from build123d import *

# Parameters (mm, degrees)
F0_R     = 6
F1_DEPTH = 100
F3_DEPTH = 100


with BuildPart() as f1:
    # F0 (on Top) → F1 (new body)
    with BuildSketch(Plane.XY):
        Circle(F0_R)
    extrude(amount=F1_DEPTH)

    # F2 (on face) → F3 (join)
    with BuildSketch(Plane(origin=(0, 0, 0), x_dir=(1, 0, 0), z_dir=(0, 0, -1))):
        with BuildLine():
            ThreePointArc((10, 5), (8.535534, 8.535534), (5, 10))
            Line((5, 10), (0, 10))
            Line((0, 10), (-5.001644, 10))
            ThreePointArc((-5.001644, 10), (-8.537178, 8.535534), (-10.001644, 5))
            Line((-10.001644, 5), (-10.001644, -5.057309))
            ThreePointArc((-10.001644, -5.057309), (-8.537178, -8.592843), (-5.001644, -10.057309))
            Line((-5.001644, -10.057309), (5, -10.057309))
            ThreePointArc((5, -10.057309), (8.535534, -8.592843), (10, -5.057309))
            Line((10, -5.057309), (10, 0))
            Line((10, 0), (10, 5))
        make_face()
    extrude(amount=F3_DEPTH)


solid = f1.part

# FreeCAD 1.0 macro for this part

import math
import FreeCAD as App
import Part
import Sketcher
Q = App.Units.Quantity

doc = App.newDocument("Part")
params = doc.addObject("Spreadsheet::Sheet", "Params")
for row, (alias, value) in enumerate([
    ("sketch1_diameter", "12 mm"),
    ("pad1_length", "100 mm"),
    ("sketch2_radius", "5 mm"),
    ("pad2_length", "100 mm"),
], start=1):
    params.set(f"A{row}", alias)
    params.set(f"B{row}", "=" + value)
    params.setAlias(f"B{row}", alias)

body = doc.addObject("PartDesign::Body", "Body")

# Sketch on XY plane
sketch1 = doc.addObject("Sketcher::SketchObject", "Sketch")
body.addObject(sketch1)
sketch1.AttachmentSupport = (doc.XY_Plane, [""])
sketch1.MapMode = "FlatFace"
sketch1.addGeometry(Part.Circle(App.Vector(0, 0, 0), App.Vector(0, 0, 1), 6), False)
sketch1.addConstraint(Sketcher.Constraint("Coincident", 0, 3, -1, 1))
sketch1.addConstraint(Sketcher.Constraint("Diameter", 0, Q("12 mm")))
sketch1.setExpression("Constraints[1]", "Params.sketch1_diameter")
pad1 = doc.addObject("PartDesign::Pad", "Pad")
body.addObject(pad1)
pad1.Profile = sketch1
pad1.setExpression("Length", "Params.pad1_length")

# Sketch on XY plane
sketch2 = doc.addObject("Sketcher::SketchObject", "Sketch001")
body.addObject(sketch2)
sketch2.AttachmentSupport = (doc.XY_Plane, [""])
sketch2.MapMode = "FlatFace"
sketch2.addGeometry(Part.ArcOfCircle(Part.Circle(App.Vector(5, -5, 0), App.Vector(0, 0, 1), 5), math.radians(-90), math.radians(0)), False)
sketch2.addGeometry(Part.LineSegment(App.Vector(5, -10, 0), App.Vector(-5, -10, 0)), False)
sketch2.addGeometry(Part.ArcOfCircle(Part.Circle(App.Vector(-5, -5, 0), App.Vector(0, 0, 1), 5), math.radians(180), math.radians(270)), False)
sketch2.addGeometry(Part.LineSegment(App.Vector(-10, -5, 0), App.Vector(-10, 5.1, 0)), False)
sketch2.addGeometry(Part.ArcOfCircle(Part.Circle(App.Vector(-5, 5.1, 0), App.Vector(0, 0, 1), 5), math.radians(90), math.radians(180)), False)
sketch2.addGeometry(Part.LineSegment(App.Vector(-5, 10.1, 0), App.Vector(5, 10.1, 0)), False)
sketch2.addGeometry(Part.ArcOfCircle(Part.Circle(App.Vector(5, 5.1, 0), App.Vector(0, 0, 1), 5), math.radians(0), math.radians(90)), False)
sketch2.addGeometry(Part.LineSegment(App.Vector(10, 5.1, 0), App.Vector(10, -5, 0)), False)
sketch2.addConstraint(Sketcher.Constraint("Tangent", 0, 1, 1, 1))
sketch2.addConstraint(Sketcher.Constraint("Tangent", 1, 2, 2, 2))
sketch2.addConstraint(Sketcher.Constraint("Tangent", 2, 1, 3, 1))
sketch2.addConstraint(Sketcher.Constraint("Tangent", 3, 2, 4, 2))
sketch2.addConstraint(Sketcher.Constraint("Tangent", 4, 1, 5, 1))
sketch2.addConstraint(Sketcher.Constraint("Tangent", 5, 2, 6, 2))
sketch2.addConstraint(Sketcher.Constraint("Tangent", 6, 1, 7, 1))
sketch2.addConstraint(Sketcher.Constraint("Tangent", 7, 2, 0, 2))
sketch2.addConstraint(Sketcher.Constraint("Horizontal", 1))
sketch2.addConstraint(Sketcher.Constraint("Vertical", 3))
sketch2.addConstraint(Sketcher.Constraint("Horizontal", 5))
sketch2.addConstraint(Sketcher.Constraint("Vertical", 7))
sketch2.addConstraint(Sketcher.Constraint("Equal", 0, 2))
sketch2.addConstraint(Sketcher.Constraint("Equal", 2, 4))
sketch2.addConstraint(Sketcher.Constraint("Equal", 4, 6))
sketch2.addConstraint(Sketcher.Constraint("Radius", 0, Q("5 mm")))
sketch2.addConstraint(Sketcher.Constraint("DistanceX", -1, 1, 0, 3, Q("5 mm")))
sketch2.addConstraint(Sketcher.Constraint("DistanceY", 0, 3, -1, 1, Q("5 mm")))
sketch2.addConstraint(Sketcher.Constraint("DistanceY", 3, 1, 3, 2, Q("10.057309 mm")))
sketch2.addConstraint(Sketcher.Constraint("DistanceX", 1, 2, 1, 1, Q("10.001644 mm")))
sketch2.setExpression("Constraints[15]", "Params.sketch2_radius")
pad2 = doc.addObject("PartDesign::Pad", "Pad001")
body.addObject(pad2)
pad2.Profile = sketch2
pad2.setExpression("Length", "Params.pad2_length")
pad2.Reversed = True

doc.recompute()
